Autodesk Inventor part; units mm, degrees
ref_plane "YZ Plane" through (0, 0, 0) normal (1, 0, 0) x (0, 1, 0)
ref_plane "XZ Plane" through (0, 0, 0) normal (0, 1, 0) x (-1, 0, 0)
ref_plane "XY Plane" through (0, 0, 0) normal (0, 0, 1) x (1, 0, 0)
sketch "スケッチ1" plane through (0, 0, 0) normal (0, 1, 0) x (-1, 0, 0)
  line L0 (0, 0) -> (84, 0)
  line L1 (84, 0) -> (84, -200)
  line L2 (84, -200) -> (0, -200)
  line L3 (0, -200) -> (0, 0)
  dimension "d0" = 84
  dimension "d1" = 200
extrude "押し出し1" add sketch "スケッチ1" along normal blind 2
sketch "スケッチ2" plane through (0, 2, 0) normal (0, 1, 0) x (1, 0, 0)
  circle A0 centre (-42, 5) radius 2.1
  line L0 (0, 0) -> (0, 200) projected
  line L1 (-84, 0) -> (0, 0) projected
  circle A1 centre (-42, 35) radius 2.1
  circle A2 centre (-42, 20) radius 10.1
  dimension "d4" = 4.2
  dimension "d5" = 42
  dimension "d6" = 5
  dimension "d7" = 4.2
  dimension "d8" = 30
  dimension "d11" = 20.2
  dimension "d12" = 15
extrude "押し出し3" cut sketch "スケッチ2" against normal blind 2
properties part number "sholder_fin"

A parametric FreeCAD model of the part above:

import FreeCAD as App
import Part
import Sketcher
from FreeCAD import Vector

doc = App.newDocument("Part")
body = doc.addObject("PartDesign::Body", "Body")

sketch1 = body.newObject("Sketcher::SketchObject", "Sketch")
sketch1.AttachmentSupport = (doc.getObject("XZ_Plane"), [""])
sketch1.MapMode = "FlatFace"
sketch1.addGeometry(Part.LineSegment(Vector(-84, 0, 0), Vector(0, 0, 0)), False)
sketch1.addGeometry(Part.LineSegment(Vector(0, 0, 0), Vector(0, -200, 0)), False)
sketch1.addGeometry(Part.LineSegment(Vector(0, -200, 0), Vector(-84, -200, 0)), False)
sketch1.addGeometry(Part.LineSegment(Vector(-84, -200, 0), Vector(-84, 0, 0)), False)
sketch1.addConstraint(Sketcher.Constraint("Coincident", 0, 2, 1, 1))
sketch1.addConstraint(Sketcher.Constraint("Coincident", 1, 2, 2, 1))
sketch1.addConstraint(Sketcher.Constraint("Coincident", 2, 2, 3, 1))
sketch1.addConstraint(Sketcher.Constraint("Coincident", 3, 2, 0, 1))
sketch1.addConstraint(Sketcher.Constraint("Horizontal", 0))
sketch1.addConstraint(Sketcher.Constraint("Vertical", 1))
sketch1.addConstraint(Sketcher.Constraint("Horizontal", 2))
sketch1.addConstraint(Sketcher.Constraint("Vertical", 3))
sketch1.addConstraint(Sketcher.Constraint("Coincident", 0, 2, -1, 1))
sketch1.addConstraint(Sketcher.Constraint("DistanceX", 0, 1, 0, 2, 84.0))
sketch1.addConstraint(Sketcher.Constraint("DistanceY", 1, 2, 1, 1, 200.0))
pad1 = body.newObject("PartDesign::Pad", "Pad")
pad1.Profile = sketch1
pad1.Length = 2
pad1.Reversed = True

sketch2 = body.newObject("Sketcher::SketchObject", "Sketch001")
sketch2.AttachmentSupport = (doc.getObject("XZ_Plane"), [""])
sketch2.MapMode = "FlatFace"
sketch2.AttachmentOffset = App.Placement(Vector(0, 0, -2), App.Rotation())
sketch2.addGeometry(Part.Circle(Vector(-42, -5, 0), Vector(0, 0, 1), 2.1), False)
sketch2.addGeometry(Part.Circle(Vector(-42, -35, 0), Vector(0, 0, 1), 2.1), False)
sketch2.addGeometry(Part.Circle(Vector(-42, -20, 0), Vector(0, 0, 1), 10.1), False)
sketch2.addConstraint(Sketcher.Constraint("Equal", 0, 1))
sketch2.addConstraint(Sketcher.Constraint("Vertical", 0, 3, 1, 3))
sketch2.addConstraint(Sketcher.Constraint("Vertical", 1, 3, 2, 3))
sketch2.addConstraint(Sketcher.Constraint("Diameter", 0, 4.2))
sketch2.addConstraint(Sketcher.Constraint("Diameter", 2, 20.2))
sketch2.addConstraint(Sketcher.Constraint("DistanceX", 0, 3, -1, 1, 42.0))
sketch2.addConstraint(Sketcher.Constraint("DistanceY", 0, 3, -1, 1, 5.0))
sketch2.addConstraint(Sketcher.Constraint("DistanceY", 1, 3, 0, 3, 30.0))
sketch2.addConstraint(Sketcher.Constraint("DistanceY", 2, 3, 0, 3, 15.0))
pocket1 = body.newObject("PartDesign::Pocket", "Pocket")
pocket1.Profile = sketch2
pocket1.Length = 2
pocket1.Reversed = True

doc.recompute()
